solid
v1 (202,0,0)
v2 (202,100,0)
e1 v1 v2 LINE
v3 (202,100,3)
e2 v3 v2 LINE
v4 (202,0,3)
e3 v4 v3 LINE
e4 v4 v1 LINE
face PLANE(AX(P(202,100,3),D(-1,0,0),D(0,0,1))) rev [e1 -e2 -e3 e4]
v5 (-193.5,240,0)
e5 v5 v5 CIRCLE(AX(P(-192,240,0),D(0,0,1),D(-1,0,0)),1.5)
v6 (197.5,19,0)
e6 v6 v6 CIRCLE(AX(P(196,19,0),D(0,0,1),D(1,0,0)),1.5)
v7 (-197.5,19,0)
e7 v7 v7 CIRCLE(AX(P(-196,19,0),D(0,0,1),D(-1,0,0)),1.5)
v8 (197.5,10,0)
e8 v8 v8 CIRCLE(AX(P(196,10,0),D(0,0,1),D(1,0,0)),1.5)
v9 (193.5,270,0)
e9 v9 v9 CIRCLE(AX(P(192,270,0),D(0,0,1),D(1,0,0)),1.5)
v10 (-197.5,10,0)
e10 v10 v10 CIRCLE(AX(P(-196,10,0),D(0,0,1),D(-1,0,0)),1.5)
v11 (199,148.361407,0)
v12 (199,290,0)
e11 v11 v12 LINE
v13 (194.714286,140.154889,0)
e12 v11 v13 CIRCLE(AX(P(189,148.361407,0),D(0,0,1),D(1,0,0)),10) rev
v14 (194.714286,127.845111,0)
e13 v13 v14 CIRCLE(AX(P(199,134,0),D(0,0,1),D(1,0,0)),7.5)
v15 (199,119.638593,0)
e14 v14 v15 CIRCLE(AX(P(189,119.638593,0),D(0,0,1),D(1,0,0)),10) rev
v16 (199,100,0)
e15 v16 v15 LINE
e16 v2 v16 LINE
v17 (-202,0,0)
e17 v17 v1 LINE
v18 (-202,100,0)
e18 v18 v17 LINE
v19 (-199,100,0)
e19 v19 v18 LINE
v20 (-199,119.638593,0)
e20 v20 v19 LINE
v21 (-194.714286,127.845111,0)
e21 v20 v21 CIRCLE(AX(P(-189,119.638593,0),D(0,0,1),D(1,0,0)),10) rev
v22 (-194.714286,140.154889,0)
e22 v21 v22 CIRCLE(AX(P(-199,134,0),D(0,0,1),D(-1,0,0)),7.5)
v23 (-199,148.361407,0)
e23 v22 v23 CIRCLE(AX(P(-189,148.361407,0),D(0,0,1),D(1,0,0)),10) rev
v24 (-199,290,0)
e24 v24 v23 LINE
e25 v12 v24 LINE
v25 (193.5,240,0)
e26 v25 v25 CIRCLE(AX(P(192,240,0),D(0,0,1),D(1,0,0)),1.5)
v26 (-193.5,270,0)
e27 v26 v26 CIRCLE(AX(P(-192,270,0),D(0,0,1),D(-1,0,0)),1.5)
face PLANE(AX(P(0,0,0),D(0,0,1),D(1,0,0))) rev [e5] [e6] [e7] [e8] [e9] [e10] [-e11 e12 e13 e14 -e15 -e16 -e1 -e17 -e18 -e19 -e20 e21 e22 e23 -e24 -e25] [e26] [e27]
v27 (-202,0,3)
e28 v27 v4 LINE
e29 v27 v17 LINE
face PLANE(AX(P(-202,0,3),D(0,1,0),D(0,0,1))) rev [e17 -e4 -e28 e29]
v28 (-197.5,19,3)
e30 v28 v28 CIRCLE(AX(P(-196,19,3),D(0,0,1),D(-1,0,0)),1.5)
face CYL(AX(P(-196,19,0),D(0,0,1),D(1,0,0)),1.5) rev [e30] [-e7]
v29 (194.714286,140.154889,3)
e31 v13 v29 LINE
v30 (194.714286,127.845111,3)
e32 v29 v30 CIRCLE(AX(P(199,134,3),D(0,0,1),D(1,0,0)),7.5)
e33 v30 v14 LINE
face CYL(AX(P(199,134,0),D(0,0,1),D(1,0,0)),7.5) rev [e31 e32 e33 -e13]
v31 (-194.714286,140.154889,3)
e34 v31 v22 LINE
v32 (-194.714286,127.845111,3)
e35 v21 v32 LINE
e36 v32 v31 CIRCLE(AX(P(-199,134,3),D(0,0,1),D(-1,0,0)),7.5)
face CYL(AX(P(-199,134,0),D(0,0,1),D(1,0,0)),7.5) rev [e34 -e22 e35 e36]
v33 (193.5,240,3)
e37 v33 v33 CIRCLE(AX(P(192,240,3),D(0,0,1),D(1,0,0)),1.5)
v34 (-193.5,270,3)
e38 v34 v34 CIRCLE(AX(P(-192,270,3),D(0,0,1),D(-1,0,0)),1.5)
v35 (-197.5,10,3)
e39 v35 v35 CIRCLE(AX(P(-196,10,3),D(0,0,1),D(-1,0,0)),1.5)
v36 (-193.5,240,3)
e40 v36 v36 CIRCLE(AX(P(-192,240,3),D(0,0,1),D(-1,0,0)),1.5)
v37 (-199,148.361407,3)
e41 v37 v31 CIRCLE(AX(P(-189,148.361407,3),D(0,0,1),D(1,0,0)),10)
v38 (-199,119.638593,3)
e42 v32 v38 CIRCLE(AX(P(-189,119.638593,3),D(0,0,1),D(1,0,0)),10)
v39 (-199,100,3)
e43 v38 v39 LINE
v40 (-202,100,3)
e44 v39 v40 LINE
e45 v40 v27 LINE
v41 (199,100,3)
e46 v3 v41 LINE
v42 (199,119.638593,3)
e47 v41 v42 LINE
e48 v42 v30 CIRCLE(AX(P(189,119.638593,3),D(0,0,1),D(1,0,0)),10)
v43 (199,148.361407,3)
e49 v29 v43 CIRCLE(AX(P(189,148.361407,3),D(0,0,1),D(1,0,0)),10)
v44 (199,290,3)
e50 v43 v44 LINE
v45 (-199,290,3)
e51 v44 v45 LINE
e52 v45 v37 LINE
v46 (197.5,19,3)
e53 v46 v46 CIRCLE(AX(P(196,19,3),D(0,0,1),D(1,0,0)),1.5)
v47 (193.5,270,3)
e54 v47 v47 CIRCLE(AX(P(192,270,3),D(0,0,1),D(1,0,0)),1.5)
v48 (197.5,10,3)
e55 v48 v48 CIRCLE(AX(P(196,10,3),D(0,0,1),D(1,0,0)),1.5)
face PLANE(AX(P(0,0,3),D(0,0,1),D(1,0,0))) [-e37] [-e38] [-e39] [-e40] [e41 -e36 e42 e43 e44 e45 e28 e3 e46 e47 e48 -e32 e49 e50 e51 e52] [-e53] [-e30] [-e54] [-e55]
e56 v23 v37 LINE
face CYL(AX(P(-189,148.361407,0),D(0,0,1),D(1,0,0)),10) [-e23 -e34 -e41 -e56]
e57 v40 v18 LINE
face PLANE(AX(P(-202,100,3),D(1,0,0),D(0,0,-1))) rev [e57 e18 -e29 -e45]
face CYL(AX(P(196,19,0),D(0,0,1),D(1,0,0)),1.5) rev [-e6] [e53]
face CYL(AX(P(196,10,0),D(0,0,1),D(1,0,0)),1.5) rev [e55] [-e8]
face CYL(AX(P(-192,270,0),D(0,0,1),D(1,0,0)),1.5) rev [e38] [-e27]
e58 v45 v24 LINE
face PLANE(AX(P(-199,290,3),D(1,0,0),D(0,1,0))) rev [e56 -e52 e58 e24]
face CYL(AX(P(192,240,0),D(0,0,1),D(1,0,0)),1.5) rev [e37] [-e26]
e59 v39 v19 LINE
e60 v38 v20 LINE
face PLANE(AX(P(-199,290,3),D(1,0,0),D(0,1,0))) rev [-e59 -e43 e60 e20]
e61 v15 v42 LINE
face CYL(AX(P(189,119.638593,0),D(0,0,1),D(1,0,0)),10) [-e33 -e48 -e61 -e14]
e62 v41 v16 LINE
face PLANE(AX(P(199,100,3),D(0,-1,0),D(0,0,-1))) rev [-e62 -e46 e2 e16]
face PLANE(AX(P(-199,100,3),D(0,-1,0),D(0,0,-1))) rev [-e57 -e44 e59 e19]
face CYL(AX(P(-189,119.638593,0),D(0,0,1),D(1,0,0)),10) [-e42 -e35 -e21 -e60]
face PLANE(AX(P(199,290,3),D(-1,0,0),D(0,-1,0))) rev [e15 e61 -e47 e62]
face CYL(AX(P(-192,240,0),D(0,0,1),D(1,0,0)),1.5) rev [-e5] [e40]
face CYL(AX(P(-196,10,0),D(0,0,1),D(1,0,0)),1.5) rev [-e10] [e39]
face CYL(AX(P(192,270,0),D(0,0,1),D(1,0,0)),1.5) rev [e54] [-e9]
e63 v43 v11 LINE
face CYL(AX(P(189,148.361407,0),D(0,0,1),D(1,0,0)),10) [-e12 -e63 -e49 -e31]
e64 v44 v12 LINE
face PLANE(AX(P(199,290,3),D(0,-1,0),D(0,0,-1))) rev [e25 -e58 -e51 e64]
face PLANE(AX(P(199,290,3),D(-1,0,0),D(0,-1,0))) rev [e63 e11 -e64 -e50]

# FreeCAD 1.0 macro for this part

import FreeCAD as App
import Part
import Sketcher

V = App.Vector
Q = App.Units.Quantity


def edges_at(feature, points):
    """Names of the edges that pass closest to the given points."""
    edges = feature.Shape.Edges
    near = lambda p: min(range(len(edges)), key=lambda i: edges[i].distToShape(Part.Vertex(*p))[0])
    return sorted({f"Edge{near(p) + 1}" for p in points})


def add_polygon(sketch, points):
    """Adds a closed chain of lines whose ends are joined by coincident constraints."""
    first, n = sketch.GeometryCount, len(points)
    for a, b in zip(points, points[1:] + points[:1]):
        sketch.addGeometry(Part.LineSegment(App.Vector(*a, 0), App.Vector(*b, 0)), False)
    for i in range(n):
        sketch.addConstraint(Sketcher.Constraint("Coincident", first + i, 2, first + (i + 1) % n, 1))

doc = App.newDocument("Part")
body = doc.addObject("PartDesign::Body", "Body")

sketch1 = body.newObject("Sketcher::SketchObject", "Sketch")
sketch1.AttachmentSupport = (doc.getObject("XY_Plane"), [""])
sketch1.MapMode = "FlatFace"
add_polygon(sketch1, [(199, 290), (-199, 290), (-199, 100), (-202, 100), (-202, 0), (202, 0), (202, 100), (199, 100)])
sketch1.addConstraint(Sketcher.Constraint("Horizontal", 0))
sketch1.addConstraint(Sketcher.Constraint("Vertical", 1))
sketch1.addConstraint(Sketcher.Constraint("Horizontal", 2))
sketch1.addConstraint(Sketcher.Constraint("Vertical", 3))
sketch1.addConstraint(Sketcher.Constraint("Horizontal", 4))
sketch1.addConstraint(Sketcher.Constraint("Vertical", 5))
sketch1.addConstraint(Sketcher.Constraint("Horizontal", 6))
sketch1.addConstraint(Sketcher.Constraint("Vertical", 7))
sketch1.addConstraint(Sketcher.Constraint("Symmetric", 3, 2, 4, 2, -1, 1))
sketch1.addConstraint(Sketcher.Constraint("Symmetric", 1, 2, 6, 2, -2))
sketch1.addConstraint(Sketcher.Constraint("DistanceX", 0, 2, 0, 1, Q("398 mm")))
sketch1.addConstraint(Sketcher.Constraint("DistanceX", 2, 2, 2, 1, Q("3 mm")))
sketch1.addConstraint(Sketcher.Constraint("DistanceY", 1, 2, 1, 1, Q("190 mm")))
sketch1.addConstraint(Sketcher.Constraint("DistanceY", 3, 2, 3, 1, Q("100 mm")))
pad1 = body.newObject("PartDesign::Pad", "Pad")
pad1.Profile = sketch1
pad1.Length = 3

sketch2 = body.newObject("Sketcher::SketchObject", "Sketch001")
sketch2.AttachmentSupport = (doc.getObject("XY_Plane"), [""])
sketch2.MapMode = "FlatFace"
sketch2.AttachmentOffset = App.Placement(V(0, 0, 3), App.Rotation())
sketch2.addGeometry(Part.Circle(V(192, 270, 0), V(0, 0, 1), 1.5), False)
sketch2.addGeometry(Part.Circle(V(192, 240, 0), V(0, 0, 1), 1.5), False)
sketch2.addGeometry(Part.Circle(V(-192, 240, 0), V(0, 0, 1), 1.5), False)
sketch2.addGeometry(Part.Circle(V(-192, 270, 0), V(0, 0, 1), 1.5), False)
sketch2.addGeometry(Part.Circle(V(196, 19, 0), V(0, 0, 1), 1.5), False)
sketch2.addGeometry(Part.Circle(V(196, 10, 0), V(0, 0, 1), 1.5), False)
sketch2.addGeometry(Part.Circle(V(-196, 10, 0), V(0, 0, 1), 1.5), False)
sketch2.addGeometry(Part.Circle(V(-196, 19, 0), V(0, 0, 1), 1.5), False)
sketch2.addConstraint(Sketcher.Constraint("Equal", 0, 1))
sketch2.addConstraint(Sketcher.Constraint("Equal", 1, 2))
sketch2.addConstraint(Sketcher.Constraint("Equal", 2, 3))
sketch2.addConstraint(Sketcher.Constraint("Equal", 3, 4))
sketch2.addConstraint(Sketcher.Constraint("Equal", 4, 5))
sketch2.addConstraint(Sketcher.Constraint("Equal", 5, 6))
sketch2.addConstraint(Sketcher.Constraint("Equal", 6, 7))
sketch2.addConstraint(Sketcher.Constraint("Symmetric", 1, 3, 2, 3, -2))
sketch2.addConstraint(Sketcher.Constraint("Symmetric", 0, 3, 3, 3, -2))
sketch2.addConstraint(Sketcher.Constraint("Symmetric", 5, 3, 6, 3, -2))
sketch2.addConstraint(Sketcher.Constraint("Symmetric", 4, 3, 7, 3, -2))
sketch2.addConstraint(Sketcher.Constraint("Vertical", 0, 3, 1, 3))
sketch2.addConstraint(Sketcher.Constraint("Vertical", 4, 3, 5, 3))
sketch2.addConstraint(Sketcher.Constraint("Diameter", 0, Q("3 mm")))
sketch2.addConstraint(Sketcher.Constraint("DistanceX", -1, 1, 0, 3, Q("192 mm")))
sketch2.addConstraint(Sketcher.Constraint("DistanceY", -1, 1, 0, 3, Q("270 mm")))
sketch2.addConstraint(Sketcher.Constraint("DistanceY", -1, 1, 1, 3, Q("240 mm")))
sketch2.addConstraint(Sketcher.Constraint("DistanceX", -1, 1, 4, 3, Q("196 mm")))
sketch2.addConstraint(Sketcher.Constraint("DistanceY", -1, 1, 4, 3, Q("19 mm")))
sketch2.addConstraint(Sketcher.Constraint("DistanceY", -1, 1, 5, 3, Q("10 mm")))
pocket1 = body.newObject("PartDesign::Pocket", "Pocket")
pocket1.Profile = sketch2
pocket1.Type = "ThroughAll"

sketch3 = body.newObject("Sketcher::SketchObject", "Sketch002")
sketch3.AttachmentSupport = (doc.getObject("XY_Plane"), [""])
sketch3.MapMode = "FlatFace"
sketch3.AttachmentOffset = App.Placement(V(0, 0, 3), App.Rotation())
sketch3.addGeometry(Part.Circle(V(199, 134, 0), V(0, 0, 1), 8), False)
sketch3.addGeometry(Part.Circle(V(-199, 134, 0), V(0, 0, 1), 8), False)
sketch3.addConstraint(Sketcher.Constraint("Equal", 0, 1))
sketch3.addConstraint(Sketcher.Constraint("Symmetric", 0, 3, 1, 3, -2))
sketch3.addConstraint(Sketcher.Constraint("Diameter", 0, Q("15 mm")))
sketch3.addConstraint(Sketcher.Constraint("DistanceX", -1, 1, 0, 3, Q("199 mm")))
sketch3.addConstraint(Sketcher.Constraint("DistanceY", -1, 1, 0, 3, Q("134 mm")))
pocket2 = body.newObject("PartDesign::Pocket", "Pocket001")
pocket2.Profile = sketch3
pocket2.Type = "ThroughAll"
doc.recompute()

fillet = body.newObject("PartDesign::Fillet", "Fillet")
fillet.Base = (pocket2, edges_at(pocket2, [
    (199, 126.5, 1.5),
    (199, 141.5, 1.5),
    (-199, 141.5, 1.5),
    (-199, 126.5, 1.5),
]))
fillet.Radius = 10

doc.recompute()
